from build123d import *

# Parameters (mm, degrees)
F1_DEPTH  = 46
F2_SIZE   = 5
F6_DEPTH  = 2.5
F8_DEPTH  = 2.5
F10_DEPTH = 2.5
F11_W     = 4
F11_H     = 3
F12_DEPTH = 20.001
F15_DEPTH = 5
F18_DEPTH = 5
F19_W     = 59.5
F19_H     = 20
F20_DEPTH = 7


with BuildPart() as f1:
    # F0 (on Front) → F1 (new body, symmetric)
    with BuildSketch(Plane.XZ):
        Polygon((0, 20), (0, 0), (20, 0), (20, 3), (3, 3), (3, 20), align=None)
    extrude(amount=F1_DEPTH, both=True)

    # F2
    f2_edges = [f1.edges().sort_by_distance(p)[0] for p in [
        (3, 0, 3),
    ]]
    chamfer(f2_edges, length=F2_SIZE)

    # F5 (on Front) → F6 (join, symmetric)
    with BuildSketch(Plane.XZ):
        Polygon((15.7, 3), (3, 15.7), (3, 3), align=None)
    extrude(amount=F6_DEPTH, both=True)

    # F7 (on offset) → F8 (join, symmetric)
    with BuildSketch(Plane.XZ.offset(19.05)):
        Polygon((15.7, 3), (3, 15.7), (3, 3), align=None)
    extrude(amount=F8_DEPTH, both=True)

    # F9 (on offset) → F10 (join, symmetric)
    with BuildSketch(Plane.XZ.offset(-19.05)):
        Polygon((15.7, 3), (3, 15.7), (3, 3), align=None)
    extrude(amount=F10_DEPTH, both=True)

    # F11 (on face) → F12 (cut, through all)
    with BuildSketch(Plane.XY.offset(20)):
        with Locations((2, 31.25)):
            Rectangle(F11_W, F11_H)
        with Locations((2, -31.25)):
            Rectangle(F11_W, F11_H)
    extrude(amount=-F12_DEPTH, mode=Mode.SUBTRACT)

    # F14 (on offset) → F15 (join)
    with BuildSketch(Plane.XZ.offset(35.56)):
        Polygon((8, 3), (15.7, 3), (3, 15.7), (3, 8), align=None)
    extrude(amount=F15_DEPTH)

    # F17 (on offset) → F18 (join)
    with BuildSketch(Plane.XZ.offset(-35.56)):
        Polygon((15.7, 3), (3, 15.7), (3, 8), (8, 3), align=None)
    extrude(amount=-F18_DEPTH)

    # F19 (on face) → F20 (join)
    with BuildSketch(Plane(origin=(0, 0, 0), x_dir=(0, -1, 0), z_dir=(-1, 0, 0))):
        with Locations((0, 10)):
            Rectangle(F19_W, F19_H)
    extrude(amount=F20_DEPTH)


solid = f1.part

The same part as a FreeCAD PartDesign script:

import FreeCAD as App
import Part
import Sketcher


def edges_at(feature, points):
    """Names of the edges that pass closest to the given points."""
    edges = feature.Shape.Edges
    near = lambda p: min(range(len(edges)), key=lambda i: edges[i].distToShape(Part.Vertex(*p))[0])
    return sorted({f"Edge{near(p) + 1}" for p in points})

doc = App.newDocument("Part")
body = doc.addObject("PartDesign::Body", "Body")

sketch1 = doc.addObject("Sketcher::SketchObject", "Sketch")
body.addObject(sketch1)
sketch1.AttachmentSupport = (doc.XZ_Plane, [""])
sketch1.MapMode = "FlatFace"
sketch1.addGeometry([
    Part.LineSegment(App.Vector(0, 20, 0), App.Vector(0, 0, 0)),
    Part.LineSegment(App.Vector(0, 0, 0), App.Vector(20, 0, 0)),
    Part.LineSegment(App.Vector(20, 0, 0), App.Vector(20, 3, 0)),
    Part.LineSegment(App.Vector(20, 3, 0), App.Vector(3, 3, 0)),
    Part.LineSegment(App.Vector(3, 3, 0), App.Vector(3, 20, 0)),
    Part.LineSegment(App.Vector(3, 20, 0), App.Vector(0, 20, 0)),
], False)
sketch1.addConstraint([
    Sketcher.Constraint("Coincident", 0, 2, 1, 1),
    Sketcher.Constraint("Coincident", 1, 2, 2, 1),
    Sketcher.Constraint("Coincident", 2, 2, 3, 1),
    Sketcher.Constraint("Coincident", 3, 2, 4, 1),
    Sketcher.Constraint("Coincident", 4, 2, 5, 1),
    Sketcher.Constraint("Coincident", 5, 2, 0, 1),
    Sketcher.Constraint("Vertical", 0),
    Sketcher.Constraint("Horizontal", 1),
    Sketcher.Constraint("Vertical", 2),
    Sketcher.Constraint("Horizontal", 3),
    Sketcher.Constraint("Vertical", 4),
    Sketcher.Constraint("Horizontal", 5),
    Sketcher.Constraint("Coincident", 0, 2, -1, 1),
    Sketcher.Constraint("Equal", 1, 0),
    Sketcher.Constraint("Equal", 5, 2),
    Sketcher.Constraint("DistanceX", 1, 1, 1, 2, 20.0),
    Sketcher.Constraint("DistanceX", 3, 2, 3, 1, 17.0),
])
pad1 = doc.addObject("PartDesign::Pad", "Pad")
body.addObject(pad1)
pad1.Profile = sketch1
pad1.Length = 92
pad1.Midplane = True
doc.recompute()

chamfer = doc.addObject("PartDesign::Chamfer", "Chamfer")
body.addObject(chamfer)
chamfer.Base = (pad1, edges_at(pad1, [(3, 0, 3)]))
chamfer.Size = 5

sketch2 = doc.addObject("Sketcher::SketchObject", "Sketch001")
body.addObject(sketch2)
sketch2.AttachmentSupport = (doc.XZ_Plane, [""])
sketch2.MapMode = "FlatFace"
sketch2.addGeometry([
    Part.LineSegment(App.Vector(15.7, 3, 0), App.Vector(3, 15.7, 0)),
    Part.LineSegment(App.Vector(3, 15.7, 0), App.Vector(3, 3, 0)),
    Part.LineSegment(App.Vector(3, 3, 0), App.Vector(15.7, 3, 0)),
], False)
sketch2.addConstraint([
    Sketcher.Constraint("Coincident", 0, 2, 1, 1),
    Sketcher.Constraint("Coincident", 1, 2, 2, 1),
    Sketcher.Constraint("Coincident", 2, 2, 0, 1),
    Sketcher.Constraint("Vertical", 1),
    Sketcher.Constraint("Horizontal", 2),
    Sketcher.Constraint("Equal", 2, 1),
    Sketcher.Constraint("DistanceX", 2, 1, 2, 2, 12.7),
    Sketcher.Constraint("DistanceX", -1, 1, 0, 2, 3.0),
    Sketcher.Constraint("DistanceY", -1, 1, 1, 2, 3.0),
])
pad2 = doc.addObject("PartDesign::Pad", "Pad001")
body.addObject(pad2)
pad2.Profile = sketch2
pad2.Length = 5
pad2.Midplane = True

sketch3 = doc.addObject("Sketcher::SketchObject", "Sketch002")
body.addObject(sketch3)
sketch3.AttachmentSupport = (doc.XZ_Plane, [""])
sketch3.MapMode = "FlatFace"
sketch3.AttachmentOffset = App.Placement(App.Vector(0, 0, 19.05), App.Rotation())
sketch3.addGeometry([
    Part.LineSegment(App.Vector(15.7, 3, 0), App.Vector(3, 15.7, 0)),
    Part.LineSegment(App.Vector(3, 15.7, 0), App.Vector(3, 3, 0)),
    Part.LineSegment(App.Vector(3, 3, 0), App.Vector(15.7, 3, 0)),
], False)
sketch3.addConstraint([
    Sketcher.Constraint("Coincident", 0, 2, 1, 1),
    Sketcher.Constraint("Coincident", 1, 2, 2, 1),
    Sketcher.Constraint("Coincident", 2, 2, 0, 1),
    Sketcher.Constraint("Vertical", 1),
    Sketcher.Constraint("Horizontal", 2),
    Sketcher.Constraint("Equal", 2, 1),
    Sketcher.Constraint("DistanceX", 2, 1, 2, 2, 12.7),
    Sketcher.Constraint("DistanceX", -1, 1, 0, 2, 3.0),
    Sketcher.Constraint("DistanceY", -1, 1, 1, 2, 3.0),
])
pad3 = doc.addObject("PartDesign::Pad", "Pad002")
body.addObject(pad3)
pad3.Profile = sketch3
pad3.Length = 5
pad3.Midplane = True

sketch4 = doc.addObject("Sketcher::SketchObject", "Sketch003")
body.addObject(sketch4)
sketch4.AttachmentSupport = (doc.XZ_Plane, [""])
sketch4.MapMode = "FlatFace"
sketch4.AttachmentOffset = App.Placement(App.Vector(0, 0, -19.05), App.Rotation())
sketch4.addGeometry([
    Part.LineSegment(App.Vector(15.7, 3, 0), App.Vector(3, 15.7, 0)),
    Part.LineSegment(App.Vector(3, 15.7, 0), App.Vector(3, 3, 0)),
    Part.LineSegment(App.Vector(3, 3, 0), App.Vector(15.7, 3, 0)),
], False)
sketch4.addConstraint([
    Sketcher.Constraint("Coincident", 0, 2, 1, 1),
    Sketcher.Constraint("Coincident", 1, 2, 2, 1),
    Sketcher.Constraint("Coincident", 2, 2, 0, 1),
    Sketcher.Constraint("Vertical", 1),
    Sketcher.Constraint("Horizontal", 2),
    Sketcher.Constraint("Equal", 2, 1),
    Sketcher.Constraint("DistanceX", 2, 1, 2, 2, 12.7),
    Sketcher.Constraint("DistanceX", -1, 1, 0, 2, 3.0),
    Sketcher.Constraint("DistanceY", -1, 1, 1, 2, 3.0),
])
pad4 = doc.addObject("PartDesign::Pad", "Pad003")
body.addObject(pad4)
pad4.Profile = sketch4
pad4.Length = 5
pad4.Midplane = True

sketch5 = doc.addObject("Sketcher::SketchObject", "Sketch004")
body.addObject(sketch5)
sketch5.AttachmentSupport = (doc.XY_Plane, [""])
sketch5.MapMode = "FlatFace"
sketch5.AttachmentOffset = App.Placement(App.Vector(0, 0, 20), App.Rotation())
sketch5.addGeometry([
    Part.LineSegment(App.Vector(0, 32.75, 0), App.Vector(0, 29.75, 0)),
    Part.LineSegment(App.Vector(0, 29.75, 0), App.Vector(4, 29.75, 0)),
    Part.LineSegment(App.Vector(4, 29.75, 0), App.Vector(4, 32.75, 0)),
    Part.LineSegment(App.Vector(4, 32.75, 0), App.Vector(0, 32.75, 0)),
    Part.LineSegment(App.Vector(0, -29.75, 0), App.Vector(0, -32.75, 0)),
    Part.LineSegment(App.Vector(0, -32.75, 0), App.Vector(4, -32.75, 0)),
    Part.LineSegment(App.Vector(4, -32.75, 0), App.Vector(4, -29.75, 0)),
    Part.LineSegment(App.Vector(4, -29.75, 0), App.Vector(0, -29.75, 0)),
], False)
sketch5.addConstraint([
    Sketcher.Constraint("Coincident", 0, 2, 1, 1),
    Sketcher.Constraint("Coincident", 1, 2, 2, 1),
    Sketcher.Constraint("Coincident", 2, 2, 3, 1),
    Sketcher.Constraint("Coincident", 3, 2, 0, 1),
    Sketcher.Constraint("Coincident", 4, 2, 5, 1),
    Sketcher.Constraint("Coincident", 5, 2, 6, 1),
    Sketcher.Constraint("Coincident", 6, 2, 7, 1),
    Sketcher.Constraint("Coincident", 7, 2, 4, 1),
    Sketcher.Constraint("Vertical", 0),
    Sketcher.Constraint("Horizontal", 1),
    Sketcher.Constraint("Vertical", 2),
    Sketcher.Constraint("Horizontal", 3),
    Sketcher.Constraint("Vertical", 4),
    Sketcher.Constraint("Horizontal", 5),
    Sketcher.Constraint("Vertical", 6),
    Sketcher.Constraint("Horizontal", 7),
    Sketcher.Constraint("Symmetric", 3, 2, 4, 2, -1, 1),
    Sketcher.Constraint("Symmetric", 1, 2, 6, 2, -1),
    Sketcher.Constraint("PointOnObject", 0, 2, -2),
    Sketcher.Constraint("DistanceX", 1, 1, 1, 2, 4.0),
    Sketcher.Constraint("DistanceY", 0, 2, 0, 1, 3.0),
    Sketcher.Constraint("DistanceY", 4, 2, 0, 2, 62.5),
])
pocket1 = doc.addObject("PartDesign::Pocket", "Pocket")
body.addObject(pocket1)
pocket1.Profile = sketch5
pocket1.Type = "ThroughAll"

sketch6 = doc.addObject("Sketcher::SketchObject", "Sketch005")
body.addObject(sketch6)
sketch6.AttachmentSupport = (doc.XZ_Plane, [""])
sketch6.MapMode = "FlatFace"
sketch6.AttachmentOffset = App.Placement(App.Vector(0, 0, 35.56), App.Rotation())
sketch6.addGeometry([
    Part.LineSegment(App.Vector(8, 3, 0), App.Vector(15.7, 3, 0)),
    Part.LineSegment(App.Vector(15.7, 3, 0), App.Vector(3, 15.7, 0)),
    Part.LineSegment(App.Vector(3, 15.7, 0), App.Vector(3, 8, 0)),
    Part.LineSegment(App.Vector(3, 8, 0), App.Vector(8, 3, 0)),
], False)
sketch6.addConstraint([
    Sketcher.Constraint("Coincident", 0, 2, 1, 1),
    Sketcher.Constraint("Coincident", 1, 2, 2, 1),
    Sketcher.Constraint("Coincident", 2, 2, 3, 1),
    Sketcher.Constraint("Coincident", 3, 2, 0, 1),
    Sketcher.Constraint("Horizontal", 0),
    Sketcher.Constraint("Vertical", 2),
    Sketcher.Constraint("Parallel", 1, 3),
    Sketcher.Constraint("Equal", 0, 2),
    Sketcher.Constraint("DistanceX", 0, 1, 0, 2, 7.7),
    Sketcher.Constraint("DistanceY", -1, 1, 0, 2, 3.0),
    Sketcher.Constraint("DistanceX", -1, 1, 1, 2, 3.0),
    Sketcher.Constraint("DistanceY", -1, 1, 2, 2, 8.0),
])
pad5 = doc.addObject("PartDesign::Pad", "Pad004")
body.addObject(pad5)
pad5.Profile = sketch6
pad5.Length = 5

sketch7 = doc.addObject("Sketcher::SketchObject", "Sketch006")
body.addObject(sketch7)
sketch7.AttachmentSupport = (doc.XZ_Plane, [""])
sketch7.MapMode = "FlatFace"
sketch7.AttachmentOffset = App.Placement(App.Vector(0, 0, -35.56), App.Rotation())
sketch7.addGeometry([
    Part.LineSegment(App.Vector(15.7, 3, 0), App.Vector(3, 15.7, 0)),
    Part.LineSegment(App.Vector(3, 15.7, 0), App.Vector(3, 8, 0)),
    Part.LineSegment(App.Vector(3, 8, 0), App.Vector(8, 3, 0)),
    Part.LineSegment(App.Vector(8, 3, 0), App.Vector(15.7, 3, 0)),
], False)
sketch7.addConstraint([
    Sketcher.Constraint("Coincident", 0, 2, 1, 1),
    Sketcher.Constraint("Coincident", 1, 2, 2, 1),
    Sketcher.Constraint("Coincident", 2, 2, 3, 1),
    Sketcher.Constraint("Coincident", 3, 2, 0, 1),
    Sketcher.Constraint("Vertical", 1),
    Sketcher.Constraint("Horizontal", 3),
    Sketcher.Constraint("Parallel", 0, 2),
    Sketcher.Constraint("Equal", 3, 1),
    Sketcher.Constraint("DistanceX", 3, 1, 3, 2, 7.7),
    Sketcher.Constraint("DistanceX", -1, 1, 0, 2, 3.0),
    Sketcher.Constraint("DistanceY", -1, 1, 1, 2, 8.0),
    Sketcher.Constraint("DistanceX", -1, 1, 2, 2, 8.0),
])
pad6 = doc.addObject("PartDesign::Pad", "Pad005")
body.addObject(pad6)
pad6.Profile = sketch7
pad6.Length = 5
pad6.Reversed = True

sketch8 = doc.addObject("Sketcher::SketchObject", "Sketch007")
body.addObject(sketch8)
sketch8.AttachmentSupport = (doc.YZ_Plane, [""])
sketch8.MapMode = "FlatFace"
sketch8.addGeometry([
    Part.LineSegment(App.Vector(29.75, 20, 0), App.Vector(29.75, 0, 0)),
    Part.LineSegment(App.Vector(29.75, 0, 0), App.Vector(-29.75, 0, 0)),
    Part.LineSegment(App.Vector(-29.75, 0, 0), App.Vector(-29.75, 20, 0)),
    Part.LineSegment(App.Vector(-29.75, 20, 0), App.Vector(29.75, 20, 0)),
], False)
sketch8.addConstraint([
    Sketcher.Constraint("Coincident", 0, 2, 1, 1),
    Sketcher.Constraint("Coincident", 1, 2, 2, 1),
    Sketcher.Constraint("Coincident", 2, 2, 3, 1),
    Sketcher.Constraint("Coincident", 3, 2, 0, 1),
    Sketcher.Constraint("Vertical", 0),
    Sketcher.Constraint("Horizontal", 1),
    Sketcher.Constraint("Vertical", 2),
    Sketcher.Constraint("Horizontal", 3),
    Sketcher.Constraint("Symmetric", 0, 2, 1, 2, -1, 1),
    Sketcher.Constraint("DistanceY", 0, 2, 0, 1, 20.0),
    Sketcher.Constraint("DistanceX", 1, 2, 1, 1, 59.5),
])
pad7 = doc.addObject("PartDesign::Pad", "Pad006")
body.addObject(pad7)
pad7.Profile = sketch8
pad7.Length = 7
pad7.Reversed = True

doc.recompute()
